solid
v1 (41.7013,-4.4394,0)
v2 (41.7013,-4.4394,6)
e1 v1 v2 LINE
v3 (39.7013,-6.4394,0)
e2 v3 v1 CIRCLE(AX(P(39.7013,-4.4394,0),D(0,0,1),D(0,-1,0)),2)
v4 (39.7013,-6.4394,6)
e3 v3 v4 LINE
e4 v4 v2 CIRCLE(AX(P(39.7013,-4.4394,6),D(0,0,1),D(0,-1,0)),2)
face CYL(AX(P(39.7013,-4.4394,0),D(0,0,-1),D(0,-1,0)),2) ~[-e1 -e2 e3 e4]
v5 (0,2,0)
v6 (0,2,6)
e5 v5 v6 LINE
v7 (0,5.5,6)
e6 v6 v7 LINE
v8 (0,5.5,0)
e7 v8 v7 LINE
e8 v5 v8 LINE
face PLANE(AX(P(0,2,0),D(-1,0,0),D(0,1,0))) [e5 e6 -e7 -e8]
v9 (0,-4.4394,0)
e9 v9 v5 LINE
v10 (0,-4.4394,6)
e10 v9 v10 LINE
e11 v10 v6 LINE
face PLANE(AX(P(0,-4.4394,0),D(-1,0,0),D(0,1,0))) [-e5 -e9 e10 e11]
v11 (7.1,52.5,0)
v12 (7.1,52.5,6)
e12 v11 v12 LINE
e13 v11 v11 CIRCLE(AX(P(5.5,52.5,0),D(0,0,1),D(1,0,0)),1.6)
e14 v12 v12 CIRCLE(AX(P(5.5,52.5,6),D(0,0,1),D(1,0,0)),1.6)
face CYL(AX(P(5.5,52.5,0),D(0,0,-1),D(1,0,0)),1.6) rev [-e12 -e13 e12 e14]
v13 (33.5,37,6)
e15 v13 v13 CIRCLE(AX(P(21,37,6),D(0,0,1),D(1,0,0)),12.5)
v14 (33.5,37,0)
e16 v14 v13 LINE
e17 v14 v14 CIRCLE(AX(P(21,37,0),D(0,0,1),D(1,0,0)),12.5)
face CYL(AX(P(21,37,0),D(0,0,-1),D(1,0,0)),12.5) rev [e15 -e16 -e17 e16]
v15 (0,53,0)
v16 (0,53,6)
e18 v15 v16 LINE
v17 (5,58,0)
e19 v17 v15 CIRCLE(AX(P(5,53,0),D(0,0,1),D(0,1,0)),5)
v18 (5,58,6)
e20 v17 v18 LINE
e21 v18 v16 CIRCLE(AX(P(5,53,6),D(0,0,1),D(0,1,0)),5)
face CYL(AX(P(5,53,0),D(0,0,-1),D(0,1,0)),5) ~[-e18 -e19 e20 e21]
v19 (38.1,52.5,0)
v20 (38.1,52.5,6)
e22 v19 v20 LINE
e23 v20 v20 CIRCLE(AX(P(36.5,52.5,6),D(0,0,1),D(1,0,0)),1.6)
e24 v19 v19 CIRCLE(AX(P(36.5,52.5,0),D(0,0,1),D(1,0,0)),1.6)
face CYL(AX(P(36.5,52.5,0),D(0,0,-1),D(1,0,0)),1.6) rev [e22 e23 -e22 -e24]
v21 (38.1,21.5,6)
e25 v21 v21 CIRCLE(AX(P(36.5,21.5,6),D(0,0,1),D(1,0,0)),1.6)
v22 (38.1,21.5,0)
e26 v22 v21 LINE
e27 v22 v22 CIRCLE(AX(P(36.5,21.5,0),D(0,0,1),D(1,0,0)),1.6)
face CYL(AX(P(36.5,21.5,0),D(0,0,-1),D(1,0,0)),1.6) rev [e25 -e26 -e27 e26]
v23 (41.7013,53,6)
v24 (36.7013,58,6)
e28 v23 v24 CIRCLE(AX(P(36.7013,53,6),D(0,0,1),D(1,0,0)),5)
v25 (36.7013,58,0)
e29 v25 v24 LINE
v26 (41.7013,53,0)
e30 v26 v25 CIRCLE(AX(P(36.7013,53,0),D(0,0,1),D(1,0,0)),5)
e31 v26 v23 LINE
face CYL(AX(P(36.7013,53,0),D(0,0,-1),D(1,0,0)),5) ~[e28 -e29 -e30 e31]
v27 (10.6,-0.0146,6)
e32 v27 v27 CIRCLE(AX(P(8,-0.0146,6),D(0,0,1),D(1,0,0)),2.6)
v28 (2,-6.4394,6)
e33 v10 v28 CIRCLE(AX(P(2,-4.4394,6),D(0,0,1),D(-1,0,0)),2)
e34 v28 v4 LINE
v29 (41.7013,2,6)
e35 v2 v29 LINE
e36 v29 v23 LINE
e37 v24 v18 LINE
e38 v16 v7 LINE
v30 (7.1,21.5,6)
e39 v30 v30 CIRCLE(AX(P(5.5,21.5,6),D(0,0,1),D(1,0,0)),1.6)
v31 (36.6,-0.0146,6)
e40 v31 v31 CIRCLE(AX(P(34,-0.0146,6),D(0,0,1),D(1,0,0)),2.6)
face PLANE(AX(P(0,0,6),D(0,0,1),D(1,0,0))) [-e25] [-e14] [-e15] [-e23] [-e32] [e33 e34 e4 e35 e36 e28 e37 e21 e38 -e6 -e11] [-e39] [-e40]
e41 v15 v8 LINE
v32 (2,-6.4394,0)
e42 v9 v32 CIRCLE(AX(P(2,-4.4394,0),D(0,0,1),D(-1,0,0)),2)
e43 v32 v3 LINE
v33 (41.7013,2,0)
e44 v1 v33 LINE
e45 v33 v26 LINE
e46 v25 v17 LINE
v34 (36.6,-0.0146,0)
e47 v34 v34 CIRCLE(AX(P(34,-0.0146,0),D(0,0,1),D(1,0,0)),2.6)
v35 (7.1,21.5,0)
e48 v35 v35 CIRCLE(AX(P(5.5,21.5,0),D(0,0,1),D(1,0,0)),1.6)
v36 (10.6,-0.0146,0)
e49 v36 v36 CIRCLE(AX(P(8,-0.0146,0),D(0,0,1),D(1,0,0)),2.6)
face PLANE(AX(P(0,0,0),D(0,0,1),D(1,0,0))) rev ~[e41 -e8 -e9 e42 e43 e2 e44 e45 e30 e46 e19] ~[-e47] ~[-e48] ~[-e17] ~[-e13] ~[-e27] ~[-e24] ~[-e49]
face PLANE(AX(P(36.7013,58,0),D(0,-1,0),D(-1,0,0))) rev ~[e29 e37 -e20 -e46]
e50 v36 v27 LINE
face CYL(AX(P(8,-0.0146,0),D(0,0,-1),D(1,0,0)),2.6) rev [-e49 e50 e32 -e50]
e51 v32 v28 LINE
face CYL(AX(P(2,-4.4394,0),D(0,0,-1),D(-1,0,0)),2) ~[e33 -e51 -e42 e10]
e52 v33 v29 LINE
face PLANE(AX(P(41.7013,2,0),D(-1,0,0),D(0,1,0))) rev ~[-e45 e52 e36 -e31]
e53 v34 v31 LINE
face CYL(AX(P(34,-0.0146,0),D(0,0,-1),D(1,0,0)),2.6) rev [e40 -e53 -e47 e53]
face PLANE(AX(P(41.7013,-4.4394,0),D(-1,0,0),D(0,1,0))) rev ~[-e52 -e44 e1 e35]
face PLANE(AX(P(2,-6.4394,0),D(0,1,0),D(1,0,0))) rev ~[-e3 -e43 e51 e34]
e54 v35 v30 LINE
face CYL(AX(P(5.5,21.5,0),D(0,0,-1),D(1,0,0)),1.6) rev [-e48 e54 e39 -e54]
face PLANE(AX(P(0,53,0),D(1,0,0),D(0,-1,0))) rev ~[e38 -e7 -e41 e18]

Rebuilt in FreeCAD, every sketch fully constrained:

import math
import FreeCAD as App
import Part
import Sketcher
from FreeCAD import Vector

doc = App.newDocument("Part")
body = doc.addObject("PartDesign::Body", "Body")

sketch1 = body.newObject("Sketcher::SketchObject", "Sketch")
sketch1.AttachmentSupport = (doc.getObject("XY_Plane"), [""])
sketch1.MapMode = "FlatFace"
sketch1.addGeometry([
    Part.ArcOfCircle(Part.Circle(Vector(36.7, 53, 0), Vector(0, 0, 1), 5), math.radians(0), math.radians(90)),
    Part.LineSegment(Vector(36.7, 58, 0), Vector(5, 58, 0)),
    Part.ArcOfCircle(Part.Circle(Vector(5, 53, 0), Vector(0, 0, 1), 5), math.radians(90), math.radians(180)),
    Part.LineSegment(Vector(0, 53, 0), Vector(0, -4.4, 0)),
    Part.ArcOfCircle(Part.Circle(Vector(2, -4.4, 0), Vector(0, 0, 1), 2), math.radians(180), math.radians(270)),
    Part.LineSegment(Vector(2, -6.4, 0), Vector(39.7, -6.4, 0)),
    Part.ArcOfCircle(Part.Circle(Vector(39.7, -4.4, 0), Vector(0, 0, 1), 2), math.radians(-90), math.radians(0)),
    Part.LineSegment(Vector(41.7, -4.4, 0), Vector(41.7, 53, 0)),
    Part.Circle(Vector(8, 0, 0), Vector(0, 0, 1), 2.6),
    Part.Circle(Vector(5.5, 21.5, 0), Vector(0, 0, 1), 1.6),
    Part.Circle(Vector(34, 0, 0), Vector(0, 0, 1), 2.6),
    Part.Circle(Vector(36.5, 21.5, 0), Vector(0, 0, 1), 1.6),
    Part.Circle(Vector(5.5, 52.5, 0), Vector(0, 0, 1), 1.6),
    Part.Circle(Vector(21, 37, 0), Vector(0, 0, 1), 12.5),
    Part.Circle(Vector(36.5, 52.5, 0), Vector(0, 0, 1), 1.6),
], False)
sketch1.addConstraint([
    Sketcher.Constraint("Tangent", 0, 2, 1, 1),
    Sketcher.Constraint("Tangent", 1, 2, 2, 1),
    Sketcher.Constraint("Tangent", 2, 2, 3, 1),
    Sketcher.Constraint("Tangent", 3, 2, 4, 1),
    Sketcher.Constraint("Tangent", 4, 2, 5, 1),
    Sketcher.Constraint("Tangent", 5, 2, 6, 1),
    Sketcher.Constraint("Tangent", 6, 2, 7, 1),
    Sketcher.Constraint("Tangent", 7, 2, 0, 1),
    Sketcher.Constraint("Horizontal", 1),
    Sketcher.Constraint("Vertical", 3),
    Sketcher.Constraint("Horizontal", 5),
    Sketcher.Constraint("Vertical", 7),
    Sketcher.Constraint("Equal", 0, 2),
    Sketcher.Constraint("Equal", 4, 6),
    Sketcher.Constraint("Equal", 8, 10),
    Sketcher.Constraint("Equal", 9, 11),
    Sketcher.Constraint("Equal", 11, 12),
    Sketcher.Constraint("Equal", 12, 14),
    Sketcher.Constraint("PointOnObject", 2, 2, -2),
    Sketcher.Constraint("Horizontal", 8, 3, 10, 3),
    Sketcher.Constraint("Horizontal", 9, 3, 11, 3),
    Sketcher.Constraint("Horizontal", 12, 3, 14, 3),
    Sketcher.Constraint("Vertical", 9, 3, 12, 3),
    Sketcher.Constraint("Vertical", 11, 3, 14, 3),
    Sketcher.Constraint("Radius", 4, 2.0),
    Sketcher.Constraint("Diameter", 13, 25.0),
    Sketcher.Constraint("Radius", 0, 5.0),
    Sketcher.Constraint("Diameter", 8, 5.2),
    Sketcher.Constraint("Diameter", 9, 3.2),
    Sketcher.Constraint("DistanceY", -1, 1, 0, 3, 53.0),
    Sketcher.Constraint("DistanceX", -1, 1, 8, 3, 8.0),
    Sketcher.Constraint("DistanceX", -1, 1, 10, 3, 34.0),
    Sketcher.Constraint("DistanceX", -1, 1, 13, 3, 21.0),
    Sketcher.Constraint("DistanceY", -1, 1, 13, 3, 37.0),
    Sketcher.Constraint("DistanceX", 9, 3, 11, 3, 31.0),
    Sketcher.Constraint("DistanceY", 9, 3, 12, 3, 31.0),
    Sketcher.Constraint("DistanceX", -1, 1, 9, 3, 5.5),
    Sketcher.Constraint("DistanceY", -1, 1, 9, 3, 21.5),
    Sketcher.Constraint("DistanceX", 1, 2, 1, 1, 31.7013),
    Sketcher.Constraint("DistanceY", 3, 2, 3, 1, 57.4394),
    Sketcher.Constraint("DistanceY", 8, 3, -1, 1, 0.0146),
])
pad1 = body.newObject("PartDesign::Pad", "Pad")
pad1.Profile = sketch1
pad1.Length = 6

doc.recompute()
